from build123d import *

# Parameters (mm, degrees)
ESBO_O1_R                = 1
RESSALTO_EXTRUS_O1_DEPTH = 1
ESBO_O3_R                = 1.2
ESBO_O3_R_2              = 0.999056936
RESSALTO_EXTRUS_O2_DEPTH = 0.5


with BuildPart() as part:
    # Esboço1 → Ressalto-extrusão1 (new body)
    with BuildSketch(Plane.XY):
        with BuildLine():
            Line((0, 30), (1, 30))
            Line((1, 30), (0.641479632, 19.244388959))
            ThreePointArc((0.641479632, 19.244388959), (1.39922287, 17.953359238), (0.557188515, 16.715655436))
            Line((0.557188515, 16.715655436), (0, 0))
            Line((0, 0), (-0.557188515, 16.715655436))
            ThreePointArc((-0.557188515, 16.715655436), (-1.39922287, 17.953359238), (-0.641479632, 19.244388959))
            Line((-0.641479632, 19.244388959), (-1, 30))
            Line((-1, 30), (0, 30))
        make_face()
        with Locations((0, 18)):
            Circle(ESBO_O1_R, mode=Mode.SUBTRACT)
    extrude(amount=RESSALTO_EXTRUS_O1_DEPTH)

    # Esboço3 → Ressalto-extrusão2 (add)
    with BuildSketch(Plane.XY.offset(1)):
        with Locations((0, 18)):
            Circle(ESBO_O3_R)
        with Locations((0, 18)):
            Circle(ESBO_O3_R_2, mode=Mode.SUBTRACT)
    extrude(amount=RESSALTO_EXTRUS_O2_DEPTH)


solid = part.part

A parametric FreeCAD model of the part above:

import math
import FreeCAD as App
import Part
import Sketcher

V = App.Vector

doc = App.newDocument("Part")
body = doc.addObject("PartDesign::Body", "Body")

sketch1 = doc.addObject("Sketcher::SketchObject", "Sketch")
body.addObject(sketch1)
sketch1.AttachmentSupport = (doc.XY_Plane, [""])
sketch1.MapMode = "FlatFace"
sketch1.addGeometry([
    Part.LineSegment(V(0.6, 19.2, 0), V(1, 30, 0)),
    Part.LineSegment(V(1, 30, 0), V(-1, 30, 0)),
    Part.LineSegment(V(-1, 30, 0), V(-0.6, 19.2, 0)),
    Part.ArcOfCircle(Part.Circle(V(0, 18, 0), V(0, 0, 1), 1.4), math.radians(117), math.radians(247)),
    Part.LineSegment(V(-0.6, 16.7, 0), V(0, 0, 0)),
    Part.LineSegment(V(0, 0, 0), V(0.6, 16.7, 0)),
    Part.ArcOfCircle(Part.Circle(V(0, 18, 0), V(0, 0, 1), 1.4), math.radians(-67), math.radians(63)),
    Part.Circle(V(0, 18, 0), V(0, 0, 1), 1),
], False)
sketch1.addConstraint([
    Sketcher.Constraint("Coincident", 0, 2, 1, 1),
    Sketcher.Constraint("Coincident", 1, 2, 2, 1),
    Sketcher.Constraint("Coincident", 2, 2, 3, 1),
    Sketcher.Constraint("Coincident", 3, 2, 4, 1),
    Sketcher.Constraint("Coincident", 4, 2, 5, 1),
    Sketcher.Constraint("Coincident", 5, 2, 6, 1),
    Sketcher.Constraint("Coincident", 6, 2, 0, 1),
    Sketcher.Constraint("Horizontal", 1),
    Sketcher.Constraint("Coincident", 4, 2, -1, 1),
    Sketcher.Constraint("Coincident", 6, 3, 3, 3),
    Sketcher.Constraint("Coincident", 7, 3, 3, 3),
    Sketcher.Constraint("Equal", 3, 6),
    Sketcher.Constraint("Symmetric", 3, 2, 5, 2, -2),
    Sketcher.Constraint("Parallel", 2, 4),
    Sketcher.Constraint("Parallel", 0, 5),
    Sketcher.Constraint("Horizontal", 2, 2, 6, 2),
    Sketcher.Constraint("Diameter", 7, 2.0),
    Sketcher.Constraint("Radius", 3, 1.4),
    Sketcher.Constraint("DistanceX", 1, 2, 1, 1, 2.0),
    Sketcher.Constraint("DistanceY", -1, 1, 3, 3, 18.0),
    Sketcher.Constraint("DistanceY", -1, 1, 0, 2, 30.0),
    Sketcher.Constraint("Distance", 4, 16.724939),
])
pad1 = doc.addObject("PartDesign::Pad", "Pad")
body.addObject(pad1)
pad1.Profile = sketch1
pad1.Length = 1

sketch2 = doc.addObject("Sketcher::SketchObject", "Sketch001")
body.addObject(sketch2)
sketch2.AttachmentSupport = (doc.XY_Plane, [""])
sketch2.MapMode = "FlatFace"
sketch2.AttachmentOffset = App.Placement(V(0, 0, 1), App.Rotation())
sketch2.addGeometry([
    Part.Circle(V(0, 18, 0), V(0, 0, 1), 1.2),
    Part.Circle(V(0, 18, 0), V(0, 0, 1), 1),
], False)
sketch2.addConstraint([
    Sketcher.Constraint("Coincident", 1, 3, 0, 3),
    Sketcher.Constraint("PointOnObject", 0, 3, -2),
    Sketcher.Constraint("Diameter", 0, 2.4),
    Sketcher.Constraint("DistanceY", -1, 1, 0, 3, 18.0),
    Sketcher.Constraint("Diameter", 1, 1.998114),
])
pad2 = doc.addObject("PartDesign::Pad", "Pad001")
body.addObject(pad2)
pad2.Profile = sketch2
pad2.Length = 0.5

doc.recompute()
